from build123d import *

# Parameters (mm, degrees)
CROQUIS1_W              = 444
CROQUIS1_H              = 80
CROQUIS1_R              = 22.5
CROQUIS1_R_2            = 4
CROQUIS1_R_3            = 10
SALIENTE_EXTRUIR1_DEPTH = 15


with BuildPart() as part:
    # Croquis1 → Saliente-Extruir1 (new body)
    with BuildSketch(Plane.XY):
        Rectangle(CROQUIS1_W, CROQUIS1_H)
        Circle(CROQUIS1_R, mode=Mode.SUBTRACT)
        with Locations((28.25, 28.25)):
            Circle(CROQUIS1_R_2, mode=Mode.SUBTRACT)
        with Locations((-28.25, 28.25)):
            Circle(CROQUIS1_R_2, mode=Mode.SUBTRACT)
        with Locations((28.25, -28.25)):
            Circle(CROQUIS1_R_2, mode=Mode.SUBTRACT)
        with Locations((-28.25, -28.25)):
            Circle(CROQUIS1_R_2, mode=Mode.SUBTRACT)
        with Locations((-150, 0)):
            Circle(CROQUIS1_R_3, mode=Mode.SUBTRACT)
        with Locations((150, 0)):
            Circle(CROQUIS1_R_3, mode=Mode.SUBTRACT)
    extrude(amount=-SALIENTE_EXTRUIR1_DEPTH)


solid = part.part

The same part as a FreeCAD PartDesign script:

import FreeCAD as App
import Part
import Sketcher
from FreeCAD import Vector
Q = App.Units.Quantity

doc = App.newDocument("Part")
body = doc.addObject("PartDesign::Body", "Body")

# Sketch on XY plane
sketch1 = doc.addObject("Sketcher::SketchObject", "Sketch")
body.addObject(sketch1)
sketch1.AttachmentSupport = (doc.XY_Plane, [""])
sketch1.MapMode = "FlatFace"
sketch1.addGeometry(Part.LineSegment(Vector(-222, 40, 0), Vector(-222, -40, 0)), False)
sketch1.addGeometry(Part.LineSegment(Vector(-222, -40, 0), Vector(222, -40, 0)), False)
sketch1.addGeometry(Part.LineSegment(Vector(222, -40, 0), Vector(222, 40, 0)), False)
sketch1.addGeometry(Part.LineSegment(Vector(222, 40, 0), Vector(-222, 40, 0)), False)
sketch1.addGeometry(Part.Circle(Vector(-28.2, -28.2, 0), Vector(0, 0, 1), 4), False)
sketch1.addGeometry(Part.Circle(Vector(28.2, -28.2, 0), Vector(0, 0, 1), 4), False)
sketch1.addGeometry(Part.Circle(Vector(-150, 0, 0), Vector(0, 0, 1), 10), False)
sketch1.addGeometry(Part.Circle(Vector(-28.2, 28.2, 0), Vector(0, 0, 1), 4), False)
sketch1.addGeometry(Part.Circle(Vector(0, 0, 0), Vector(0, 0, 1), 22.5), False)
sketch1.addGeometry(Part.Circle(Vector(150, 0, 0), Vector(0, 0, 1), 10), False)
sketch1.addGeometry(Part.Circle(Vector(28.2, 28.2, 0), Vector(0, 0, 1), 4), False)
sketch1.addConstraint(Sketcher.Constraint("Coincident", 0, 2, 1, 1))
sketch1.addConstraint(Sketcher.Constraint("Coincident", 1, 2, 2, 1))
sketch1.addConstraint(Sketcher.Constraint("Coincident", 2, 2, 3, 1))
sketch1.addConstraint(Sketcher.Constraint("Coincident", 3, 2, 0, 1))
sketch1.addConstraint(Sketcher.Constraint("Vertical", 0))
sketch1.addConstraint(Sketcher.Constraint("Horizontal", 1))
sketch1.addConstraint(Sketcher.Constraint("Vertical", 2))
sketch1.addConstraint(Sketcher.Constraint("Horizontal", 3))
sketch1.addConstraint(Sketcher.Constraint("Coincident", 8, 3, -1, 1))
sketch1.addConstraint(Sketcher.Constraint("Equal", 4, 5))
sketch1.addConstraint(Sketcher.Constraint("Equal", 5, 7))
sketch1.addConstraint(Sketcher.Constraint("Equal", 6, 9))
sketch1.addConstraint(Sketcher.Constraint("Equal", 7, 10))
sketch1.addConstraint(Sketcher.Constraint("Symmetric", 5, 3, 7, 3, -1, 1))
sketch1.addConstraint(Sketcher.Constraint("Symmetric", 6, 3, 9, 3, -1, 1))
sketch1.addConstraint(Sketcher.Constraint("Symmetric", 4, 3, 10, 3, -1, 1))
sketch1.addConstraint(Sketcher.Constraint("Symmetric", 0, 2, 2, 2, -1, 1))
sketch1.addConstraint(Sketcher.Constraint("Symmetric", 4, 3, 5, 3, -2))
sketch1.addConstraint(Sketcher.Constraint("PointOnObject", 6, 3, -1))
sketch1.addConstraint(Sketcher.Constraint("Diameter", 4, Q("8 mm")))
sketch1.addConstraint(Sketcher.Constraint("Diameter", 6, Q("20 mm")))
sketch1.addConstraint(Sketcher.Constraint("Diameter", 8, Q("45 mm")))
sketch1.addConstraint(Sketcher.Constraint("DistanceX", 1, 1, 1, 2, Q("444 mm")))
sketch1.addConstraint(Sketcher.Constraint("DistanceY", 0, 2, 0, 1, Q("80 mm")))
sketch1.addConstraint(Sketcher.Constraint("DistanceX", 6, 3, -1, 1, Q("150 mm")))
sketch1.addConstraint(Sketcher.Constraint("DistanceX", 4, 3, 5, 3, Q("56.5 mm")))
sketch1.addConstraint(Sketcher.Constraint("DistanceY", 4, 3, 7, 3, Q("56.5 mm")))
pad1 = doc.addObject("PartDesign::Pad", "Pad")
body.addObject(pad1)
pad1.Profile = sketch1
pad1.Length = 15
pad1.Reversed = True

doc.recompute()
